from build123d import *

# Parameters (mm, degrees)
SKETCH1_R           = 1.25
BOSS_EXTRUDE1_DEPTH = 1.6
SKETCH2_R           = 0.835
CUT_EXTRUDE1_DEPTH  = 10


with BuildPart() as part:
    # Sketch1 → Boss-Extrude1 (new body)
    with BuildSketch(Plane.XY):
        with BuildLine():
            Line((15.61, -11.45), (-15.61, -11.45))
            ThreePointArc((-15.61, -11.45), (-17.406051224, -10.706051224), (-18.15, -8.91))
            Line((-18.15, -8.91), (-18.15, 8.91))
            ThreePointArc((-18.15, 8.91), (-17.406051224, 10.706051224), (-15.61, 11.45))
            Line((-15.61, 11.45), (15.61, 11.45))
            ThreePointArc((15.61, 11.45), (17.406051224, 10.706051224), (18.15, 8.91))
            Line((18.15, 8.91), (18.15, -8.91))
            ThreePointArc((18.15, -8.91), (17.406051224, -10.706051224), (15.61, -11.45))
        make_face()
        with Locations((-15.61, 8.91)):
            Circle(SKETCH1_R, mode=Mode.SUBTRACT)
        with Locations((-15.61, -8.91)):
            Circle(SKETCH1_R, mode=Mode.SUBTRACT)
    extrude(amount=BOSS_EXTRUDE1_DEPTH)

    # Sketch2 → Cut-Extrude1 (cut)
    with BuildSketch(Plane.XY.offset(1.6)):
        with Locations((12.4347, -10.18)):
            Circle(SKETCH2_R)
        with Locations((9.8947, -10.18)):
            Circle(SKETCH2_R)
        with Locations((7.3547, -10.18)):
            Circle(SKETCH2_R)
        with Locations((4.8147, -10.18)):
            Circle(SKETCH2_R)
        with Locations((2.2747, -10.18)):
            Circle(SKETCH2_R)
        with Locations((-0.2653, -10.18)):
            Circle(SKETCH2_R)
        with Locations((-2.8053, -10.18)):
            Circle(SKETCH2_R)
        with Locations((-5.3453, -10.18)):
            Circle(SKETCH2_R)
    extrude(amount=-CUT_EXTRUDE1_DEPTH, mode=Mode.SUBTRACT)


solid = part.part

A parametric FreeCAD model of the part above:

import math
import FreeCAD as App
import Part
import Sketcher

doc = App.newDocument("Part")
params = doc.addObject("Spreadsheet::Sheet", "Params")
for row, (alias, value) in enumerate([
    ("sketch1_diameter", "2.5 mm"),
    ("sketch1_radius", "2.54 mm"),
    ("sketch1_width", "31.22 mm"),
    ("sketch1_height", "17.82 mm"),
    ("pad1_length", "1.6 mm"),
    ("sketch2_diameter", "1.67 mm"),
    ("pocket1_length", "10 mm"),
], start=1):
    params.set(f"A{row}", alias)
    params.set(f"B{row}", "=" + value)
    params.setAlias(f"B{row}", alias)

body = doc.addObject("PartDesign::Body", "Body")

# Sketch on XY plane
sketch1 = body.newObject("Sketcher::SketchObject", "Sketch")
sketch1.AttachmentSupport = (doc.getObject("XY_Plane"), [""])
sketch1.MapMode = "FlatFace"
sketch1.addGeometry(Part.LineSegment(App.Vector(-15.6, -11.4, 0), App.Vector(15.6, -11.4, 0)), False)
sketch1.addGeometry(Part.ArcOfCircle(Part.Circle(App.Vector(15.6, -8.9, 0), App.Vector(0, 0, 1), 2.5), math.radians(-90), math.radians(0)), False)
sketch1.addGeometry(Part.LineSegment(App.Vector(18.1, -8.9, 0), App.Vector(18.1, 8.9, 0)), False)
sketch1.addGeometry(Part.ArcOfCircle(Part.Circle(App.Vector(15.6, 8.9, 0), App.Vector(0, 0, 1), 2.5), math.radians(0), math.radians(90)), False)
sketch1.addGeometry(Part.LineSegment(App.Vector(15.6, 11.4, 0), App.Vector(-15.6, 11.4, 0)), False)
sketch1.addGeometry(Part.ArcOfCircle(Part.Circle(App.Vector(-15.6, 8.9, 0), App.Vector(0, 0, 1), 2.5), math.radians(90), math.radians(180)), False)
sketch1.addGeometry(Part.LineSegment(App.Vector(-18.1, 8.9, 0), App.Vector(-18.1, -8.9, 0)), False)
sketch1.addGeometry(Part.ArcOfCircle(Part.Circle(App.Vector(-15.6, -8.9, 0), App.Vector(0, 0, 1), 2.5), math.radians(-180), math.radians(-90)), False)
sketch1.addGeometry(Part.Circle(App.Vector(-15.6, -8.9, 0), App.Vector(0, 0, 1), 1.2), False)
sketch1.addGeometry(Part.Circle(App.Vector(-15.6, 8.9, 0), App.Vector(0, 0, 1), 1.2), False)
sketch1.addConstraint(Sketcher.Constraint("Tangent", 0, 2, 1, 1))
sketch1.addConstraint(Sketcher.Constraint("Tangent", 1, 2, 2, 1))
sketch1.addConstraint(Sketcher.Constraint("Tangent", 2, 2, 3, 1))
sketch1.addConstraint(Sketcher.Constraint("Tangent", 3, 2, 4, 1))
sketch1.addConstraint(Sketcher.Constraint("Tangent", 4, 2, 5, 1))
sketch1.addConstraint(Sketcher.Constraint("Tangent", 5, 2, 6, 1))
sketch1.addConstraint(Sketcher.Constraint("Tangent", 6, 2, 7, 1))
sketch1.addConstraint(Sketcher.Constraint("Tangent", 7, 2, 0, 1))
sketch1.addConstraint(Sketcher.Constraint("Horizontal", 0))
sketch1.addConstraint(Sketcher.Constraint("Vertical", 2))
sketch1.addConstraint(Sketcher.Constraint("Horizontal", 4))
sketch1.addConstraint(Sketcher.Constraint("Vertical", 6))
sketch1.addConstraint(Sketcher.Constraint("Coincident", 8, 3, 7, 3))
sketch1.addConstraint(Sketcher.Constraint("Coincident", 9, 3, 5, 3))
sketch1.addConstraint(Sketcher.Constraint("Equal", 1, 3))
sketch1.addConstraint(Sketcher.Constraint("Equal", 3, 5))
sketch1.addConstraint(Sketcher.Constraint("Equal", 5, 7))
sketch1.addConstraint(Sketcher.Constraint("Equal", 8, 9))
sketch1.addConstraint(Sketcher.Constraint("Symmetric", 1, 3, 5, 3, -1, 1))
sketch1.addConstraint(Sketcher.Constraint("Diameter", 8, 2.5))
sketch1.addConstraint(Sketcher.Constraint("Radius", 1, 2.54))
sketch1.addConstraint(Sketcher.Constraint("DistanceX", 0, 1, 0, 2, 31.22))
sketch1.addConstraint(Sketcher.Constraint("DistanceY", 2, 1, 2, 2, 17.82))
sketch1.setExpression("Constraints[19]", "Params.sketch1_diameter")
sketch1.setExpression("Constraints[20]", "Params.sketch1_radius")
sketch1.setExpression("Constraints[21]", "Params.sketch1_width")
sketch1.setExpression("Constraints[22]", "Params.sketch1_height")
pad1 = body.newObject("PartDesign::Pad", "Pad")
pad1.Profile = sketch1
pad1.setExpression("Length", "Params.pad1_length")

# Sketch on XY plane
sketch2 = body.newObject("Sketcher::SketchObject", "Sketch001")
sketch2.AttachmentSupport = (doc.getObject("XY_Plane"), [""])
sketch2.MapMode = "FlatFace"
sketch2.AttachmentOffset = App.Placement(App.Vector(0, 0, 1.6), App.Rotation())
sketch2.addGeometry(Part.Circle(App.Vector(12.4, -10.2, 0), App.Vector(0, 0, 1), 0.8), False)
sketch2.addGeometry(Part.Circle(App.Vector(9.9, -10.2, 0), App.Vector(0, 0, 1), 0.8), False)
sketch2.addGeometry(Part.Circle(App.Vector(7.4, -10.2, 0), App.Vector(0, 0, 1), 0.8), False)
sketch2.addGeometry(Part.Circle(App.Vector(4.8, -10.2, 0), App.Vector(0, 0, 1), 0.8), False)
sketch2.addGeometry(Part.Circle(App.Vector(2.3, -10.2, 0), App.Vector(0, 0, 1), 0.8), False)
sketch2.addGeometry(Part.Circle(App.Vector(-0.3, -10.2, 0), App.Vector(0, 0, 1), 0.8), False)
sketch2.addGeometry(Part.Circle(App.Vector(-2.8, -10.2, 0), App.Vector(0, 0, 1), 0.8), False)
sketch2.addGeometry(Part.Circle(App.Vector(-5.3, -10.2, 0), App.Vector(0, 0, 1), 0.8), False)
sketch2.addConstraint(Sketcher.Constraint("Equal", 0, 1))
sketch2.addConstraint(Sketcher.Constraint("Equal", 1, 2))
sketch2.addConstraint(Sketcher.Constraint("Equal", 2, 3))
sketch2.addConstraint(Sketcher.Constraint("Equal", 3, 4))
sketch2.addConstraint(Sketcher.Constraint("Equal", 4, 5))
sketch2.addConstraint(Sketcher.Constraint("Equal", 5, 6))
sketch2.addConstraint(Sketcher.Constraint("Equal", 6, 7))
sketch2.addConstraint(Sketcher.Constraint("Horizontal", 0, 3, 1, 3))
sketch2.addConstraint(Sketcher.Constraint("Horizontal", 1, 3, 2, 3))
sketch2.addConstraint(Sketcher.Constraint("Horizontal", 2, 3, 3, 3))
sketch2.addConstraint(Sketcher.Constraint("Horizontal", 3, 3, 4, 3))
sketch2.addConstraint(Sketcher.Constraint("Horizontal", 4, 3, 5, 3))
sketch2.addConstraint(Sketcher.Constraint("Horizontal", 5, 3, 6, 3))
sketch2.addConstraint(Sketcher.Constraint("Horizontal", 6, 3, 7, 3))
sketch2.addConstraint(Sketcher.Constraint("Diameter", 0, 1.67))
sketch2.addConstraint(Sketcher.Constraint("DistanceX", 5, 3, 0, 3, 12.7))
sketch2.addConstraint(Sketcher.Constraint("DistanceX", 6, 3, 1, 3, 12.7))
sketch2.addConstraint(Sketcher.Constraint("DistanceX", 7, 3, 2, 3, 12.7))
sketch2.addConstraint(Sketcher.Constraint("DistanceY", 0, 3, -1, 1, 10.18))
sketch2.addConstraint(Sketcher.Constraint("DistanceX", 1, 3, 0, 3, 2.54))
sketch2.addConstraint(Sketcher.Constraint("DistanceX", 2, 3, 1, 3, 2.54))
sketch2.addConstraint(Sketcher.Constraint("DistanceX", 3, 3, 2, 3, 2.54))
sketch2.addConstraint(Sketcher.Constraint("DistanceX", 4, 3, 3, 3, 2.54))
sketch2.addConstraint(Sketcher.Constraint("DistanceX", -1, 1, 0, 3, 12.4347))
sketch2.setExpression("Constraints[14]", "Params.sketch2_diameter")
pocket1 = body.newObject("PartDesign::Pocket", "Pocket")
pocket1.Profile = sketch2
pocket1.setExpression("Length", "Params.pocket1_length")

doc.recompute()
